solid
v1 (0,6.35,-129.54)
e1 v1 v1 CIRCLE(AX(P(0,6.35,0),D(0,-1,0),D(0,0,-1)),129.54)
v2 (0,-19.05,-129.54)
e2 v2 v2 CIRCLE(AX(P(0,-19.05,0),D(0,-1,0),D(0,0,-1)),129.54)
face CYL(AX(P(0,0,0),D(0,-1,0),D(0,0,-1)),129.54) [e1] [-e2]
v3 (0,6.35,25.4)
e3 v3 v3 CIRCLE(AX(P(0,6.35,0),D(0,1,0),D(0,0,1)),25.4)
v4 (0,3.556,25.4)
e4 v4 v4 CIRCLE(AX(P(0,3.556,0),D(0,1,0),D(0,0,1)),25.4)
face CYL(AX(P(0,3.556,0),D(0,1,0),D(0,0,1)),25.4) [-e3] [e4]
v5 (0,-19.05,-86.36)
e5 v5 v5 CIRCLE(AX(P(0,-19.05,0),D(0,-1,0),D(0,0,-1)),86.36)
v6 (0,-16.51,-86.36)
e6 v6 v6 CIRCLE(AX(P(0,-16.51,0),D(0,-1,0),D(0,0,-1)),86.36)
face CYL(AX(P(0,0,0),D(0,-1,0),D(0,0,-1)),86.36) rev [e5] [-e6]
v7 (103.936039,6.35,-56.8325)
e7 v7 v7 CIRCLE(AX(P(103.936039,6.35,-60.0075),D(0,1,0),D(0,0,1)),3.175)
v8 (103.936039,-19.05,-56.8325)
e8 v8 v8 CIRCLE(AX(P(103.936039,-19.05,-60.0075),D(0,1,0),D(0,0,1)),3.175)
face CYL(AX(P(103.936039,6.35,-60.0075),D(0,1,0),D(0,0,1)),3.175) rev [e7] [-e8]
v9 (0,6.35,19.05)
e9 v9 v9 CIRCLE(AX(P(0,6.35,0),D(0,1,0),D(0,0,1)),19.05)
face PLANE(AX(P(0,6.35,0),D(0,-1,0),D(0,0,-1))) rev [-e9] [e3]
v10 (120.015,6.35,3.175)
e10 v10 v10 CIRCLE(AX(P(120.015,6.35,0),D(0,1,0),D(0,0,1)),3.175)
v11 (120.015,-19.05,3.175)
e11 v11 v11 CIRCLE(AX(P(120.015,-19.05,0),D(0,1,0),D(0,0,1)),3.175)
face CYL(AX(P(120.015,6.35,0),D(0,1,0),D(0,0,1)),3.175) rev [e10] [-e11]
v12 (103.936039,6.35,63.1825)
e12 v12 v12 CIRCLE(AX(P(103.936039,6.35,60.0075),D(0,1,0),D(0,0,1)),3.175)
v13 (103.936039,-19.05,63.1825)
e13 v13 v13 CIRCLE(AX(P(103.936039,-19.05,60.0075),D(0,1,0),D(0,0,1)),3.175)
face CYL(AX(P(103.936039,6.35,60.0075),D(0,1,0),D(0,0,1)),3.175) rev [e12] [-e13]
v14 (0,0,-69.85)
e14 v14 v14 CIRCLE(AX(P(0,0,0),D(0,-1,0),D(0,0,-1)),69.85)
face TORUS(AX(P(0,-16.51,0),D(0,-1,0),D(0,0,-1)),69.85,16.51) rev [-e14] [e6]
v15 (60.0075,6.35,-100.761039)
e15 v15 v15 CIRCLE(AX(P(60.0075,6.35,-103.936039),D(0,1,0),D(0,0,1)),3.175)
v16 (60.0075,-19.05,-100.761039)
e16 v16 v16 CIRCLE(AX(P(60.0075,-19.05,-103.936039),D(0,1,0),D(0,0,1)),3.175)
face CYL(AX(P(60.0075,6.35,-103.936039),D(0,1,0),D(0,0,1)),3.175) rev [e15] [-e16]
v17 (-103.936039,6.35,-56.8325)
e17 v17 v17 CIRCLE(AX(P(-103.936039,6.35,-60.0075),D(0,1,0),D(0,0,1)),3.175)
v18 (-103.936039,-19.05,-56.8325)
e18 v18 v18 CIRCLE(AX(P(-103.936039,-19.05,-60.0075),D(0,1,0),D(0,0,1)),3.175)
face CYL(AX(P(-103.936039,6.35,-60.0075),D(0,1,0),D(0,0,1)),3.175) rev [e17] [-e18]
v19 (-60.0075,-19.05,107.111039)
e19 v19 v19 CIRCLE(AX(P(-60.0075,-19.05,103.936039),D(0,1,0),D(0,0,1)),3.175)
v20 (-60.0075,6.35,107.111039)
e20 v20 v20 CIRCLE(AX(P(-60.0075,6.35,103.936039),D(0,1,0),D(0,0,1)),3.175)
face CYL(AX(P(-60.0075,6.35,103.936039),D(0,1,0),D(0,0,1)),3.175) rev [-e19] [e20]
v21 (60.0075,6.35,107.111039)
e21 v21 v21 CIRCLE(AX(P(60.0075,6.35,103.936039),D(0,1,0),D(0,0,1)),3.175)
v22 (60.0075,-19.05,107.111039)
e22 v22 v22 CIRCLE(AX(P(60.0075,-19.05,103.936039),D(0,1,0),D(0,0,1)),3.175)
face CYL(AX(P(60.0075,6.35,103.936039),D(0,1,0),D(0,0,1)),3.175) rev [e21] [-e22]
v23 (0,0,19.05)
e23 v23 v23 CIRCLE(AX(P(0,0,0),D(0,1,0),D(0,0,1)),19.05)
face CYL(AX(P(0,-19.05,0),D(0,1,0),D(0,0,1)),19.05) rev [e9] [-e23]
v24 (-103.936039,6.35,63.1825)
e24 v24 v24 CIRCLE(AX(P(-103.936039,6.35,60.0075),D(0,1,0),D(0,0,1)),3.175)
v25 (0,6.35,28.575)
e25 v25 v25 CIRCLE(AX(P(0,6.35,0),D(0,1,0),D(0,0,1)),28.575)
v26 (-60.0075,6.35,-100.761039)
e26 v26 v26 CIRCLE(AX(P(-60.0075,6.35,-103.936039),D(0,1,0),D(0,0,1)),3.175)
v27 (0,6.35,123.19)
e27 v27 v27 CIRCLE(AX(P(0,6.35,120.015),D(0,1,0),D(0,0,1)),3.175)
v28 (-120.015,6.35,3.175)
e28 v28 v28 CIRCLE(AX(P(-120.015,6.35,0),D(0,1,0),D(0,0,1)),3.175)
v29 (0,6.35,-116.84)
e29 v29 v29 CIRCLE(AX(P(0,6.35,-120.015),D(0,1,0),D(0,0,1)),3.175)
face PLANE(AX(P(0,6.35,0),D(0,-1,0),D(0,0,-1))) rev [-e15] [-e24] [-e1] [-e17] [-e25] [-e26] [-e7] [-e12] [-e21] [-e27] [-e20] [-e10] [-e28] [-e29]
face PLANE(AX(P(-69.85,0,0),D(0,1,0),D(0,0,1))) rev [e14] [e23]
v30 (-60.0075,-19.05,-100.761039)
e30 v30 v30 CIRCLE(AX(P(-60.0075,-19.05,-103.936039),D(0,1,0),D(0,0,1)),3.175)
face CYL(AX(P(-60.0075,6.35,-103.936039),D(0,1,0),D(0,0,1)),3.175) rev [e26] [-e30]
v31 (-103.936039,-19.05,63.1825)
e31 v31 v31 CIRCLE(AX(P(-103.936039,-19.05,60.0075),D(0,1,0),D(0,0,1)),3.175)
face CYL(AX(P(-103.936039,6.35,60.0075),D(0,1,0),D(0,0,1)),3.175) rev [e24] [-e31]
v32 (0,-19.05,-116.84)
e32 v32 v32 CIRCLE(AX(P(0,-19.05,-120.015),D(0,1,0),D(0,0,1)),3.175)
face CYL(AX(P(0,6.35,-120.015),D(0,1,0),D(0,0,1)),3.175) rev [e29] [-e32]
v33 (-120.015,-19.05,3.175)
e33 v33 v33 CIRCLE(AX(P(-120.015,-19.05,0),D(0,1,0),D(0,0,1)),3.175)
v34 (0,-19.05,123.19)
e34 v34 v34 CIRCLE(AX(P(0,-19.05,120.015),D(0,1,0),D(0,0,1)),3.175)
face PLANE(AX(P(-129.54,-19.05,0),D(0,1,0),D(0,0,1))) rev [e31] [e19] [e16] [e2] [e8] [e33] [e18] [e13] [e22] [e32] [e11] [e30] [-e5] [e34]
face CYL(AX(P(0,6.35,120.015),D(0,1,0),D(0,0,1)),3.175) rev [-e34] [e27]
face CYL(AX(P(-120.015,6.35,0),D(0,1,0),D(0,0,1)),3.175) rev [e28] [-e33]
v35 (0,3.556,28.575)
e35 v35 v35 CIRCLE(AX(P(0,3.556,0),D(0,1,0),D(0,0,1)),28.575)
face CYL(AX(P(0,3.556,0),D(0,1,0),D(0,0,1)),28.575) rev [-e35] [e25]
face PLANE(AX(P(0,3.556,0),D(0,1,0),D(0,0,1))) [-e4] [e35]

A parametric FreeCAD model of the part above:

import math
import FreeCAD as App
import Part
import Sketcher
from FreeCAD import Vector
Q = App.Units.Quantity

doc = App.newDocument("Part")
body = doc.addObject("PartDesign::Body", "Body")

sketch1 = doc.addObject("Sketcher::SketchObject", "Sketch")
body.addObject(sketch1)
sketch1.AttachmentSupport = (doc.XY_Plane, [""])
sketch1.MapMode = "FlatFace"
sketch1.addGeometry(Part.LineSegment(Vector(0, 0, 0), Vector(0, 6.35, 0)), False)
sketch1.addGeometry(Part.LineSegment(Vector(0, 6.35, 0), Vector(-129.54, 6.35, 0)), False)
sketch1.addGeometry(Part.LineSegment(Vector(-129.54, 6.35, 0), Vector(-129.54, -19.05, 0)), False)
sketch1.addGeometry(Part.LineSegment(Vector(-129.54, -19.05, 0), Vector(-86.36, -19.05, 0)), False)
sketch1.addGeometry(Part.LineSegment(Vector(-86.36, -19.05, 0), Vector(-86.36, -16.51, 0)), False)
sketch1.addGeometry(Part.ArcOfCircle(Part.Circle(Vector(-69.85, -16.51, 0), Vector(0, 0, 1), 16.51), math.radians(90), math.radians(180)), False)
sketch1.addGeometry(Part.LineSegment(Vector(-69.85, 0, 0), Vector(0, 0, 0)), False)
sketch1.addConstraint(Sketcher.Constraint("Coincident", 0, 2, 1, 1))
sketch1.addConstraint(Sketcher.Constraint("Coincident", 1, 2, 2, 1))
sketch1.addConstraint(Sketcher.Constraint("Coincident", 2, 2, 3, 1))
sketch1.addConstraint(Sketcher.Constraint("Coincident", 3, 2, 4, 1))
sketch1.addConstraint(Sketcher.Constraint("Tangent", 4, 2, 5, 2))
sketch1.addConstraint(Sketcher.Constraint("Tangent", 5, 1, 6, 1))
sketch1.addConstraint(Sketcher.Constraint("Coincident", 6, 2, 0, 1))
sketch1.addConstraint(Sketcher.Constraint("Vertical", 0))
sketch1.addConstraint(Sketcher.Constraint("Horizontal", 1))
sketch1.addConstraint(Sketcher.Constraint("Vertical", 2))
sketch1.addConstraint(Sketcher.Constraint("Horizontal", 3))
sketch1.addConstraint(Sketcher.Constraint("Vertical", 4))
sketch1.addConstraint(Sketcher.Constraint("Horizontal", 6))
sketch1.addConstraint(Sketcher.Constraint("Coincident", 6, 2, -1, 1))
sketch1.addConstraint(Sketcher.Constraint("DistanceY", 2, 2, 2, 1, Q("1 in")))
sketch1.addConstraint(Sketcher.Constraint("Radius", 5, Q("0.65 in")))
sketch1.addConstraint(Sketcher.Constraint("DistanceX", 1, 2, 1, 1, Q("5.1 in")))
sketch1.addConstraint(Sketcher.Constraint("DistanceX", 3, 1, 3, 2, Q("1.7 in")))
sketch1.addConstraint(Sketcher.Constraint("DistanceY", 4, 1, 4, 2, Q("0.1 in")))
revolution = doc.addObject("PartDesign::Revolution", "Revolution")
body.addObject(revolution)
revolution.Profile = sketch1
revolution.ReferenceAxis = (sketch1, ["V_Axis"])
revolution.Angle = 360

sketch2 = doc.addObject("Sketcher::SketchObject", "Sketch001")
body.addObject(sketch2)
sketch2.AttachmentSupport = (doc.XZ_Plane, [""])
sketch2.MapMode = "FlatFace"
sketch2.AttachmentOffset = App.Placement(Vector(0, 0, -0.25 * 25.4), App.Rotation())
sketch2.addGeometry(Part.Circle(Vector(0, 0, 0), Vector(0, 0, 1), 19.05), False)
sketch2.addConstraint(Sketcher.Constraint("Coincident", 0, 3, -1, 1))
sketch2.addConstraint(Sketcher.Constraint("Diameter", 0, Q("1.5 in")))
pocket1 = doc.addObject("PartDesign::Pocket", "Pocket")
body.addObject(pocket1)
pocket1.Profile = sketch2
pocket1.Type = "ThroughAll"
pocket1.Reversed = True

sketch3 = doc.addObject("Sketcher::SketchObject", "Sketch002")
body.addObject(sketch3)
sketch3.AttachmentSupport = (doc.XZ_Plane, [""])
sketch3.MapMode = "FlatFace"
sketch3.AttachmentOffset = App.Placement(Vector(0, 0, -0.25 * 25.4), App.Rotation())
sketch3.addGeometry(Part.Circle(Vector(0, 0, 0), Vector(0, 0, 1), 28.575), False)
sketch3.addGeometry(Part.Circle(Vector(0, 0, 0), Vector(0, 0, 1), 25.4), False)
sketch3.addConstraint(Sketcher.Constraint("Coincident", 0, 3, -1, 1))
sketch3.addConstraint(Sketcher.Constraint("Coincident", 1, 3, -1, 1))
sketch3.addConstraint(Sketcher.Constraint("Diameter", 1, Q("2 in")))
sketch3.addConstraint(Sketcher.Constraint("Diameter", 0, Q("2.25 in")))
pocket2 = doc.addObject("PartDesign::Pocket", "Pocket001")
body.addObject(pocket2)
pocket2.Profile = sketch3
pocket2.Length = Q("0.11 in")
pocket2.Reversed = True

sketch4 = doc.addObject("Sketcher::SketchObject", "Sketch003")
body.addObject(sketch4)
sketch4.AttachmentSupport = (doc.XZ_Plane, [""])
sketch4.MapMode = "FlatFace"
sketch4.AttachmentOffset = App.Placement(Vector(0, 0, -0.25 * 25.4), App.Rotation())
sketch4.addGeometry(Part.Circle(Vector(0, -120.015, 0), Vector(0, 0, 1), 3.175), False)
sketch4.addGeometry(Part.Circle(Vector(-60.0075, -103.936039, 0), Vector(0, 0, 1), 3.175), False)
sketch4.addGeometry(Part.Circle(Vector(-103.936039, -60.0075, 0), Vector(0, 0, 1), 3.175), False)
sketch4.addGeometry(Part.Circle(Vector(-120.015, 0, 0), Vector(0, 0, 1), 3.175), False)
sketch4.addGeometry(Part.Circle(Vector(-103.936039, 60.0075, 0), Vector(0, 0, 1), 3.175), False)
sketch4.addGeometry(Part.Circle(Vector(-60.0075, 103.936039, 0), Vector(0, 0, 1), 3.175), False)
sketch4.addGeometry(Part.Circle(Vector(0, 120.015, 0), Vector(0, 0, 1), 3.175), False)
sketch4.addGeometry(Part.Circle(Vector(60.0075, 103.936039, 0), Vector(0, 0, 1), 3.175), False)
sketch4.addGeometry(Part.Circle(Vector(103.936039, 60.0075, 0), Vector(0, 0, 1), 3.175), False)
sketch4.addGeometry(Part.Circle(Vector(120.015, 0, 0), Vector(0, 0, 1), 3.175), False)
sketch4.addGeometry(Part.Circle(Vector(103.936039, -60.0075, 0), Vector(0, 0, 1), 3.175), False)
sketch4.addGeometry(Part.Circle(Vector(60.0075, -103.936039, 0), Vector(0, 0, 1), 3.175), False)
sketch4.addConstraint(Sketcher.Constraint("Equal", 0, 1))
sketch4.addConstraint(Sketcher.Constraint("Equal", 1, 2))
sketch4.addConstraint(Sketcher.Constraint("Equal", 2, 3))
sketch4.addConstraint(Sketcher.Constraint("Equal", 3, 4))
sketch4.addConstraint(Sketcher.Constraint("Equal", 4, 5))
sketch4.addConstraint(Sketcher.Constraint("Equal", 5, 6))
sketch4.addConstraint(Sketcher.Constraint("Equal", 6, 7))
sketch4.addConstraint(Sketcher.Constraint("Equal", 7, 8))
sketch4.addConstraint(Sketcher.Constraint("Equal", 8, 9))
sketch4.addConstraint(Sketcher.Constraint("Equal", 9, 10))
sketch4.addConstraint(Sketcher.Constraint("Equal", 10, 11))
sketch4.addConstraint(Sketcher.Constraint("Symmetric", 0, 3, 6, 3, -1, 1))
sketch4.addConstraint(Sketcher.Constraint("Symmetric", 1, 3, 7, 3, -1, 1))
sketch4.addConstraint(Sketcher.Constraint("Symmetric", 2, 3, 8, 3, -1, 1))
sketch4.addConstraint(Sketcher.Constraint("Symmetric", 3, 3, 9, 3, -1, 1))
sketch4.addConstraint(Sketcher.Constraint("Symmetric", 4, 3, 10, 3, -1, 1))
sketch4.addConstraint(Sketcher.Constraint("Symmetric", 5, 3, 11, 3, -1, 1))
sketch4.addConstraint(Sketcher.Constraint("Symmetric", 5, 3, 7, 3, -2))
sketch4.addConstraint(Sketcher.Constraint("Symmetric", 4, 3, 8, 3, -2))
sketch4.addConstraint(Sketcher.Constraint("PointOnObject", 0, 3, -2))
sketch4.addConstraint(Sketcher.Constraint("PointOnObject", 3, 3, -1))
sketch4.addConstraint(Sketcher.Constraint("Diameter", 0, Q("0.25 in")))
sketch4.addConstraint(Sketcher.Constraint("DistanceY", 0, 3, -1, 1, Q("4.725 in")))
sketch4.addConstraint(Sketcher.Constraint("DistanceX", 3, 3, -1, 1, Q("4.725 in")))
sketch4.addConstraint(Sketcher.Constraint("DistanceY", 2, 3, 4, 3, Q("4.725 in")))
sketch4.addConstraint(Sketcher.Constraint("DistanceX", 5, 3, 7, 3, Q("4.725 in")))
sketch4.addConstraint(Sketcher.Constraint("DistanceY", 1, 3, -1, 1, 103.936039))
sketch4.addConstraint(Sketcher.Constraint("DistanceX", 2, 3, -1, 1, 103.936039))
doc.recompute()
hole = doc.addObject("PartDesign::Hole", "Hole")
body.addObject(hole)
hole.Profile = sketch4
hole.ThreadType = "None"
hole.Diameter = Q("0.25 in")
hole.DepthType = "ThroughAll"
hole.Reversed = True

doc.recompute()
